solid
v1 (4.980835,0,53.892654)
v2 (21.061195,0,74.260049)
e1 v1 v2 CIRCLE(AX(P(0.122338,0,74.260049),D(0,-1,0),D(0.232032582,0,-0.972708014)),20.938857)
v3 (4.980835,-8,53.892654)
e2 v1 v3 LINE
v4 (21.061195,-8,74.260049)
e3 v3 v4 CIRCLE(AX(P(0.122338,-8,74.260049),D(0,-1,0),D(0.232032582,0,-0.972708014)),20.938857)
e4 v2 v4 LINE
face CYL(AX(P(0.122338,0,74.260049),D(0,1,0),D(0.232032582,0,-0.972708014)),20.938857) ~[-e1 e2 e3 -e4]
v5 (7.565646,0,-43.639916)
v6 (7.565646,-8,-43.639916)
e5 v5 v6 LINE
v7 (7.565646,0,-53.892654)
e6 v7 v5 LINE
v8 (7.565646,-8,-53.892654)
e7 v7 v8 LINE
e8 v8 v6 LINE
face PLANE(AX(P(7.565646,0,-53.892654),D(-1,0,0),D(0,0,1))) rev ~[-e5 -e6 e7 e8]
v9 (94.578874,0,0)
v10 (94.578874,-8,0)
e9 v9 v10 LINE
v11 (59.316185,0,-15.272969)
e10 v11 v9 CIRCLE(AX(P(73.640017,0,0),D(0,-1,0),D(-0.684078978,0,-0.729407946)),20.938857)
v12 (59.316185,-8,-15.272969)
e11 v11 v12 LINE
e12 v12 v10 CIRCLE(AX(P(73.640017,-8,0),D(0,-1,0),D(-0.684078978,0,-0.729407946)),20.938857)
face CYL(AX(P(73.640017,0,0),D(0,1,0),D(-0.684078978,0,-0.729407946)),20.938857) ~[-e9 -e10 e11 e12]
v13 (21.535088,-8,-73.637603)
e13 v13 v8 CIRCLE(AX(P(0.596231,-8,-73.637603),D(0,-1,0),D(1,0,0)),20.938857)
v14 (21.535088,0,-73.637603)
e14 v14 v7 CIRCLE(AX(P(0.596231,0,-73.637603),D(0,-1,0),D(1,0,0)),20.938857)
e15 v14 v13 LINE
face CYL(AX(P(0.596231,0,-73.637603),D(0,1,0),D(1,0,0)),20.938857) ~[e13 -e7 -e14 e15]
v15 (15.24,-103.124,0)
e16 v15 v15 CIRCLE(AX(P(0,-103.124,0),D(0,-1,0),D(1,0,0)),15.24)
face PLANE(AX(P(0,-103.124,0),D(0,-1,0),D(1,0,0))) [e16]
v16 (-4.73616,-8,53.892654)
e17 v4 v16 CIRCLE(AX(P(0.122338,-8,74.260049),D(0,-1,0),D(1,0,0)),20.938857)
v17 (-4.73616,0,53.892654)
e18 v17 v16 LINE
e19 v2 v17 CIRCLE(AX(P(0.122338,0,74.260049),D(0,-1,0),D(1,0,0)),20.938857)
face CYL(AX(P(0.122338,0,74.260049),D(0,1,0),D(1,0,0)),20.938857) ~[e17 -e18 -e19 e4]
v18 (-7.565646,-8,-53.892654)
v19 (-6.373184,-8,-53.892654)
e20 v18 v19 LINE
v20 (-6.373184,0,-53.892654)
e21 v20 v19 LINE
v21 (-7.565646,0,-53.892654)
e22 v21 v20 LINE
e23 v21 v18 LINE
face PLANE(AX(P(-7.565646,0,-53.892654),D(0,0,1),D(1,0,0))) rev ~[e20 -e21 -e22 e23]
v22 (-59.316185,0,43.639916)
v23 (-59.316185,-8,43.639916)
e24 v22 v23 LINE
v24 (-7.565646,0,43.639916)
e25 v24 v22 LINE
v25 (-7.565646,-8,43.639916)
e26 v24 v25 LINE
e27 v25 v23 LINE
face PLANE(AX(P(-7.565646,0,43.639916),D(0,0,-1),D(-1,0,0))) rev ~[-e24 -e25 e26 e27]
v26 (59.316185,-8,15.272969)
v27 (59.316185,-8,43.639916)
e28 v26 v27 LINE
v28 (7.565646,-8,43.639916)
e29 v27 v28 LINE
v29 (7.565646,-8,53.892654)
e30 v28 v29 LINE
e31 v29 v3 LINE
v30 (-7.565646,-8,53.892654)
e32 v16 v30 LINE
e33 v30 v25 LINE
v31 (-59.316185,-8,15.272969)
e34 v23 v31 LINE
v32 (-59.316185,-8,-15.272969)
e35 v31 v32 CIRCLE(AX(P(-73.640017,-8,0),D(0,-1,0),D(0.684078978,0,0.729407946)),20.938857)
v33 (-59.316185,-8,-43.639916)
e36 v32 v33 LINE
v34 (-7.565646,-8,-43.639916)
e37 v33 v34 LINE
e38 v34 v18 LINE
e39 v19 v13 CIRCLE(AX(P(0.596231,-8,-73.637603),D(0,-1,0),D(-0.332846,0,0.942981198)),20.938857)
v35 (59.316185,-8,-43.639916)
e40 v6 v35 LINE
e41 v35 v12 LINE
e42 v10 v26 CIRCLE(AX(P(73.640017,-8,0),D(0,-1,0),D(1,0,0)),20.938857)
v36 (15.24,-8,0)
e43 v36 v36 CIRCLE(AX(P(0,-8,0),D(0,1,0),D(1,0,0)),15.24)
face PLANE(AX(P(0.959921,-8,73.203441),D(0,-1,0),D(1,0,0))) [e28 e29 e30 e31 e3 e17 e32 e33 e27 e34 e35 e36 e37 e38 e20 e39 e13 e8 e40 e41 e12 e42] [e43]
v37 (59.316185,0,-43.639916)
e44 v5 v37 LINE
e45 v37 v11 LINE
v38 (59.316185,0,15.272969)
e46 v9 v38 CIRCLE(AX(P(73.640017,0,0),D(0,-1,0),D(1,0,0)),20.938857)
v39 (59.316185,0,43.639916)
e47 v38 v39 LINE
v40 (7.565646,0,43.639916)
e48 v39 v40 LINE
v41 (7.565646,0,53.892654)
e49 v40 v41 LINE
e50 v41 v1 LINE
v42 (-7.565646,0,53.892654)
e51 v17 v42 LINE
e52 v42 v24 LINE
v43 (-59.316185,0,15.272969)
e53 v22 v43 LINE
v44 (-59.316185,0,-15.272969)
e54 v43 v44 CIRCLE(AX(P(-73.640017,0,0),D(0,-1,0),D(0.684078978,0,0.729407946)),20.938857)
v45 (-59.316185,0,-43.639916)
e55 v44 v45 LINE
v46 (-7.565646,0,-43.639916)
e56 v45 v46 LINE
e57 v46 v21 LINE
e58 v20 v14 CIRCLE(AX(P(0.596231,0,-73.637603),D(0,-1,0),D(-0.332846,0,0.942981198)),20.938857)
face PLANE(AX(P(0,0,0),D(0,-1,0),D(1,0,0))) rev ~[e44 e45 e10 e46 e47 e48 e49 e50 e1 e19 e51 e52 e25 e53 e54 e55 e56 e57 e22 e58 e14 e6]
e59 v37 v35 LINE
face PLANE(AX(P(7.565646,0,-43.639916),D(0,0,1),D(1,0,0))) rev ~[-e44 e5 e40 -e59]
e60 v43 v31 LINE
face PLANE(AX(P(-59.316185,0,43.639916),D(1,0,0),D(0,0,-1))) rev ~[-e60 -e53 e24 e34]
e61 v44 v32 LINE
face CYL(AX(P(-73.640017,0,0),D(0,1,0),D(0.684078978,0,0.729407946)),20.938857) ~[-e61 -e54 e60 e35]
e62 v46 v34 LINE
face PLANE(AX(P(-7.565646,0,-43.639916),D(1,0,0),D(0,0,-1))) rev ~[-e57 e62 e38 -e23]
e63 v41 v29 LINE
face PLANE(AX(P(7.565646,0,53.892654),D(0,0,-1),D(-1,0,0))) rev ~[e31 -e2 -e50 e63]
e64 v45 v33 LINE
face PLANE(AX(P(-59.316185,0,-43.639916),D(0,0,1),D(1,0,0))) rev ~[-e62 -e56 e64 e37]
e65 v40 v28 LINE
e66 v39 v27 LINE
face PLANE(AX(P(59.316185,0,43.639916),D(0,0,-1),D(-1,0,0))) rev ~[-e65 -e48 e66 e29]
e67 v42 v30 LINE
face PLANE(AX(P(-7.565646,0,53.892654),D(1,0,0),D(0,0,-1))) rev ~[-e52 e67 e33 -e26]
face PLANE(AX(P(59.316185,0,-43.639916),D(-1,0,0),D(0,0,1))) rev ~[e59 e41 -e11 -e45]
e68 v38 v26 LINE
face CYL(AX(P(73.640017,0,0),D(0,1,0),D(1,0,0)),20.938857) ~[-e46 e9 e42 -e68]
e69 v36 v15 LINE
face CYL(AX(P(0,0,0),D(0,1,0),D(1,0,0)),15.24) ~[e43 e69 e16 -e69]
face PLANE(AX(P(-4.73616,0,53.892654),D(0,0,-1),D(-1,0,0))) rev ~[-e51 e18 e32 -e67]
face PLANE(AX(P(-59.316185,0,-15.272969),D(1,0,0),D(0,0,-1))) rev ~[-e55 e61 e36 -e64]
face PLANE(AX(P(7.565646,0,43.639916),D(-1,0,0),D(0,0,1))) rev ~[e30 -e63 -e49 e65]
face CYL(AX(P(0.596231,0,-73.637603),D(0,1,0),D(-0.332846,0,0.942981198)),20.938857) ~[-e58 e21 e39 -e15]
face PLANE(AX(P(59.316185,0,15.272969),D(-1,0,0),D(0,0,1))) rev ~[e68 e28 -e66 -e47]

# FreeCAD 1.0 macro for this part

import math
import FreeCAD as App
import Part
import Sketcher
from FreeCAD import Vector
Q = App.Units.Quantity

doc = App.newDocument("Part")
body = doc.addObject("PartDesign::Body", "Body")

sketch1 = body.newObject("Sketcher::SketchObject", "Sketch")
sketch1.AttachmentSupport = (doc.getObject("XZ_Plane"), [""])
sketch1.MapMode = "FlatFace"
sketch1.addGeometry(Part.ArcOfCircle(Part.Circle(Vector(0.122338, 74.260049, 0), Vector(0, 0, 1), 20.938857), math.radians(0), math.radians(256.583232)), False)
sketch1.addGeometry(Part.LineSegment(Vector(-4.73616, 53.892654, 0), Vector(-7.565646, 53.892654, 0)), False)
sketch1.addGeometry(Part.LineSegment(Vector(-7.565646, 53.892654, 0), Vector(-7.565646, 43.639916, 0)), False)
sketch1.addGeometry(Part.LineSegment(Vector(-7.565646, 43.639916, 0), Vector(-59.316185, 43.639916, 0)), False)
sketch1.addGeometry(Part.LineSegment(Vector(-59.316185, 43.639916, 0), Vector(-59.316185, 15.272969, 0)), False)
sketch1.addGeometry(Part.ArcOfCircle(Part.Circle(Vector(-73.640017, 0, 0), Vector(0, 0, 1), 20.938857), math.radians(46.836783), math.radians(313.163217)), False)
sketch1.addGeometry(Part.LineSegment(Vector(-59.316185, -15.272969, 0), Vector(-59.316185, -43.639916, 0)), False)
sketch1.addGeometry(Part.LineSegment(Vector(-59.316185, -43.639916, 0), Vector(-7.565646, -43.639916, 0)), False)
sketch1.addGeometry(Part.LineSegment(Vector(-7.565646, -43.639916, 0), Vector(-7.565646, -53.892654, 0)), False)
sketch1.addGeometry(Part.LineSegment(Vector(-7.565646, -53.892654, 0), Vector(-6.373184, -53.892654, 0)), False)
sketch1.addGeometry(Part.ArcOfCircle(Part.Circle(Vector(0.596231, -73.637603, 0), Vector(0, 0, 1), 20.938857), math.radians(109.441607), math.radians(360)), False)
sketch1.addGeometry(Part.ArcOfCircle(Part.Circle(Vector(0.596231, -73.637603, 0), Vector(0, 0, 1), 20.938857), math.radians(0), math.radians(70.558393)), False)
sketch1.addGeometry(Part.LineSegment(Vector(7.565646, -53.892654, 0), Vector(7.565646, -43.639916, 0)), False)
sketch1.addGeometry(Part.LineSegment(Vector(7.565646, -43.639916, 0), Vector(59.316185, -43.639916, 0)), False)
sketch1.addGeometry(Part.LineSegment(Vector(59.316185, -43.639916, 0), Vector(59.316185, -15.272969, 0)), False)
sketch1.addGeometry(Part.ArcOfCircle(Part.Circle(Vector(73.640017, 0, 0), Vector(0, 0, 1), 20.938857), math.radians(-133.163217), math.radians(0)), False)
sketch1.addGeometry(Part.ArcOfCircle(Part.Circle(Vector(73.640017, 0, 0), Vector(0, 0, 1), 20.938857), math.radians(0), math.radians(133.163217)), False)
sketch1.addGeometry(Part.LineSegment(Vector(59.316185, 15.272969, 0), Vector(59.316185, 43.639916, 0)), False)
sketch1.addGeometry(Part.LineSegment(Vector(59.316185, 43.639916, 0), Vector(7.565646, 43.639916, 0)), False)
sketch1.addGeometry(Part.LineSegment(Vector(7.565646, 43.639916, 0), Vector(7.565646, 53.892654, 0)), False)
sketch1.addGeometry(Part.LineSegment(Vector(7.565646, 53.892654, 0), Vector(4.980835, 53.892654, 0)), False)
sketch1.addGeometry(Part.ArcOfCircle(Part.Circle(Vector(0.122338, 74.260049, 0), Vector(0, 0, 1), 20.938857), math.radians(-76.583232), math.radians(0)), False)
sketch1.addConstraint(Sketcher.Constraint("Coincident", 0, 2, 1, 1))
sketch1.addConstraint(Sketcher.Constraint("Coincident", 1, 2, 2, 1))
sketch1.addConstraint(Sketcher.Constraint("Coincident", 2, 2, 3, 1))
sketch1.addConstraint(Sketcher.Constraint("Coincident", 3, 2, 4, 1))
sketch1.addConstraint(Sketcher.Constraint("Coincident", 4, 2, 5, 1))
sketch1.addConstraint(Sketcher.Constraint("Coincident", 5, 2, 6, 1))
sketch1.addConstraint(Sketcher.Constraint("Coincident", 6, 2, 7, 1))
sketch1.addConstraint(Sketcher.Constraint("Coincident", 7, 2, 8, 1))
sketch1.addConstraint(Sketcher.Constraint("Coincident", 8, 2, 9, 1))
sketch1.addConstraint(Sketcher.Constraint("Coincident", 9, 2, 10, 1))
sketch1.addConstraint(Sketcher.Constraint("Tangent", 10, 2, 11, 1))
sketch1.addConstraint(Sketcher.Constraint("Coincident", 11, 2, 12, 1))
sketch1.addConstraint(Sketcher.Constraint("Coincident", 12, 2, 13, 1))
sketch1.addConstraint(Sketcher.Constraint("Coincident", 13, 2, 14, 1))
sketch1.addConstraint(Sketcher.Constraint("Coincident", 14, 2, 15, 1))
sketch1.addConstraint(Sketcher.Constraint("Tangent", 15, 2, 16, 1))
sketch1.addConstraint(Sketcher.Constraint("Coincident", 16, 2, 17, 1))
sketch1.addConstraint(Sketcher.Constraint("Coincident", 17, 2, 18, 1))
sketch1.addConstraint(Sketcher.Constraint("Coincident", 18, 2, 19, 1))
sketch1.addConstraint(Sketcher.Constraint("Coincident", 19, 2, 20, 1))
sketch1.addConstraint(Sketcher.Constraint("Coincident", 20, 2, 21, 1))
sketch1.addConstraint(Sketcher.Constraint("Tangent", 21, 2, 0, 1))
sketch1.addConstraint(Sketcher.Constraint("Horizontal", 1))
sketch1.addConstraint(Sketcher.Constraint("Vertical", 2))
sketch1.addConstraint(Sketcher.Constraint("Horizontal", 3))
sketch1.addConstraint(Sketcher.Constraint("Vertical", 4))
sketch1.addConstraint(Sketcher.Constraint("Vertical", 6))
sketch1.addConstraint(Sketcher.Constraint("Horizontal", 7))
sketch1.addConstraint(Sketcher.Constraint("Vertical", 8))
sketch1.addConstraint(Sketcher.Constraint("Horizontal", 9))
sketch1.addConstraint(Sketcher.Constraint("Vertical", 12))
sketch1.addConstraint(Sketcher.Constraint("Horizontal", 13))
sketch1.addConstraint(Sketcher.Constraint("Vertical", 14))
sketch1.addConstraint(Sketcher.Constraint("Vertical", 17))
sketch1.addConstraint(Sketcher.Constraint("Horizontal", 18))
sketch1.addConstraint(Sketcher.Constraint("Vertical", 19))
sketch1.addConstraint(Sketcher.Constraint("Horizontal", 20))
sketch1.addConstraint(Sketcher.Constraint("Equal", 0, 5))
sketch1.addConstraint(Sketcher.Constraint("Equal", 5, 10))
sketch1.addConstraint(Sketcher.Constraint("Equal", 10, 11))
sketch1.addConstraint(Sketcher.Constraint("Equal", 11, 15))
sketch1.addConstraint(Sketcher.Constraint("Equal", 15, 16))
sketch1.addConstraint(Sketcher.Constraint("Equal", 16, 21))
sketch1.addConstraint(Sketcher.Constraint("Symmetric", 5, 3, 15, 3, -1, 1))
sketch1.addConstraint(Sketcher.Constraint("Symmetric", 1, 2, 11, 2, -1, 1))
sketch1.addConstraint(Sketcher.Constraint("Symmetric", 3, 2, 13, 2, -1, 1))
sketch1.addConstraint(Sketcher.Constraint("Symmetric", 6, 2, 17, 2, -1, 1))
sketch1.addConstraint(Sketcher.Constraint("Symmetric", 8, 2, 19, 2, -1, 1))
sketch1.addConstraint(Sketcher.Constraint("Symmetric", 8, 2, 11, 2, -2))
sketch1.addConstraint(Sketcher.Constraint("Symmetric", 6, 2, 13, 2, -2))
sketch1.addConstraint(Sketcher.Constraint("PointOnObject", 5, 3, -1))
sketch1.addConstraint(Sketcher.Constraint("PointOnObject", 15, 2, -1))
sketch1.addConstraint(Sketcher.Constraint("Horizontal", 11, 3, 10, 2))
sketch1.addConstraint(Sketcher.Constraint("Horizontal", 0, 3, 21, 2))
sketch1.addConstraint(Sketcher.Constraint("Radius", 0, 20.938857))
sketch1.addConstraint(Sketcher.Constraint("DistanceX", 3, 2, 3, 1, 51.750539))
sketch1.addConstraint(Sketcher.Constraint("DistanceX", 20, 2, 20, 1, 2.584811))
sketch1.addConstraint(Sketcher.Constraint("DistanceX", 6, 2, 9, 2, 52.943001))
sketch1.addConstraint(Sketcher.Constraint("DistanceX", 1, 2, 1, 1, 2.829486))
sketch1.addConstraint(Sketcher.Constraint("DistanceY", 2, 2, 2, 1, 10.252738))
sketch1.addConstraint(Sketcher.Constraint("DistanceY", 4, 2, 4, 1, 28.366948))
sketch1.addConstraint(Sketcher.Constraint("DistanceY", -1, 1, 0, 3, 74.260049))
sketch1.addConstraint(Sketcher.Constraint("DistanceX", 0, 2, -1, 1, 4.73616))
pad1 = body.newObject("PartDesign::Pad", "Pad")
pad1.Profile = sketch1
pad1.Length = 8

sketch2 = body.newObject("Sketcher::SketchObject", "Sketch001")
sketch2.AttachmentSupport = (doc.getObject("XZ_Plane"), [""])
sketch2.MapMode = "FlatFace"
sketch2.addGeometry(Part.Circle(Vector(0, 0, 0), Vector(0, 0, 1), 15.24), False)
sketch2.addConstraint(Sketcher.Constraint("Coincident", 0, 3, -1, 1))
sketch2.addConstraint(Sketcher.Constraint("Diameter", 0, Q("1.2 in")))
pad2 = body.newObject("PartDesign::Pad", "Pad001")
pad2.Profile = sketch2
pad2.Length = Q("4.06 in")

doc.recompute()
